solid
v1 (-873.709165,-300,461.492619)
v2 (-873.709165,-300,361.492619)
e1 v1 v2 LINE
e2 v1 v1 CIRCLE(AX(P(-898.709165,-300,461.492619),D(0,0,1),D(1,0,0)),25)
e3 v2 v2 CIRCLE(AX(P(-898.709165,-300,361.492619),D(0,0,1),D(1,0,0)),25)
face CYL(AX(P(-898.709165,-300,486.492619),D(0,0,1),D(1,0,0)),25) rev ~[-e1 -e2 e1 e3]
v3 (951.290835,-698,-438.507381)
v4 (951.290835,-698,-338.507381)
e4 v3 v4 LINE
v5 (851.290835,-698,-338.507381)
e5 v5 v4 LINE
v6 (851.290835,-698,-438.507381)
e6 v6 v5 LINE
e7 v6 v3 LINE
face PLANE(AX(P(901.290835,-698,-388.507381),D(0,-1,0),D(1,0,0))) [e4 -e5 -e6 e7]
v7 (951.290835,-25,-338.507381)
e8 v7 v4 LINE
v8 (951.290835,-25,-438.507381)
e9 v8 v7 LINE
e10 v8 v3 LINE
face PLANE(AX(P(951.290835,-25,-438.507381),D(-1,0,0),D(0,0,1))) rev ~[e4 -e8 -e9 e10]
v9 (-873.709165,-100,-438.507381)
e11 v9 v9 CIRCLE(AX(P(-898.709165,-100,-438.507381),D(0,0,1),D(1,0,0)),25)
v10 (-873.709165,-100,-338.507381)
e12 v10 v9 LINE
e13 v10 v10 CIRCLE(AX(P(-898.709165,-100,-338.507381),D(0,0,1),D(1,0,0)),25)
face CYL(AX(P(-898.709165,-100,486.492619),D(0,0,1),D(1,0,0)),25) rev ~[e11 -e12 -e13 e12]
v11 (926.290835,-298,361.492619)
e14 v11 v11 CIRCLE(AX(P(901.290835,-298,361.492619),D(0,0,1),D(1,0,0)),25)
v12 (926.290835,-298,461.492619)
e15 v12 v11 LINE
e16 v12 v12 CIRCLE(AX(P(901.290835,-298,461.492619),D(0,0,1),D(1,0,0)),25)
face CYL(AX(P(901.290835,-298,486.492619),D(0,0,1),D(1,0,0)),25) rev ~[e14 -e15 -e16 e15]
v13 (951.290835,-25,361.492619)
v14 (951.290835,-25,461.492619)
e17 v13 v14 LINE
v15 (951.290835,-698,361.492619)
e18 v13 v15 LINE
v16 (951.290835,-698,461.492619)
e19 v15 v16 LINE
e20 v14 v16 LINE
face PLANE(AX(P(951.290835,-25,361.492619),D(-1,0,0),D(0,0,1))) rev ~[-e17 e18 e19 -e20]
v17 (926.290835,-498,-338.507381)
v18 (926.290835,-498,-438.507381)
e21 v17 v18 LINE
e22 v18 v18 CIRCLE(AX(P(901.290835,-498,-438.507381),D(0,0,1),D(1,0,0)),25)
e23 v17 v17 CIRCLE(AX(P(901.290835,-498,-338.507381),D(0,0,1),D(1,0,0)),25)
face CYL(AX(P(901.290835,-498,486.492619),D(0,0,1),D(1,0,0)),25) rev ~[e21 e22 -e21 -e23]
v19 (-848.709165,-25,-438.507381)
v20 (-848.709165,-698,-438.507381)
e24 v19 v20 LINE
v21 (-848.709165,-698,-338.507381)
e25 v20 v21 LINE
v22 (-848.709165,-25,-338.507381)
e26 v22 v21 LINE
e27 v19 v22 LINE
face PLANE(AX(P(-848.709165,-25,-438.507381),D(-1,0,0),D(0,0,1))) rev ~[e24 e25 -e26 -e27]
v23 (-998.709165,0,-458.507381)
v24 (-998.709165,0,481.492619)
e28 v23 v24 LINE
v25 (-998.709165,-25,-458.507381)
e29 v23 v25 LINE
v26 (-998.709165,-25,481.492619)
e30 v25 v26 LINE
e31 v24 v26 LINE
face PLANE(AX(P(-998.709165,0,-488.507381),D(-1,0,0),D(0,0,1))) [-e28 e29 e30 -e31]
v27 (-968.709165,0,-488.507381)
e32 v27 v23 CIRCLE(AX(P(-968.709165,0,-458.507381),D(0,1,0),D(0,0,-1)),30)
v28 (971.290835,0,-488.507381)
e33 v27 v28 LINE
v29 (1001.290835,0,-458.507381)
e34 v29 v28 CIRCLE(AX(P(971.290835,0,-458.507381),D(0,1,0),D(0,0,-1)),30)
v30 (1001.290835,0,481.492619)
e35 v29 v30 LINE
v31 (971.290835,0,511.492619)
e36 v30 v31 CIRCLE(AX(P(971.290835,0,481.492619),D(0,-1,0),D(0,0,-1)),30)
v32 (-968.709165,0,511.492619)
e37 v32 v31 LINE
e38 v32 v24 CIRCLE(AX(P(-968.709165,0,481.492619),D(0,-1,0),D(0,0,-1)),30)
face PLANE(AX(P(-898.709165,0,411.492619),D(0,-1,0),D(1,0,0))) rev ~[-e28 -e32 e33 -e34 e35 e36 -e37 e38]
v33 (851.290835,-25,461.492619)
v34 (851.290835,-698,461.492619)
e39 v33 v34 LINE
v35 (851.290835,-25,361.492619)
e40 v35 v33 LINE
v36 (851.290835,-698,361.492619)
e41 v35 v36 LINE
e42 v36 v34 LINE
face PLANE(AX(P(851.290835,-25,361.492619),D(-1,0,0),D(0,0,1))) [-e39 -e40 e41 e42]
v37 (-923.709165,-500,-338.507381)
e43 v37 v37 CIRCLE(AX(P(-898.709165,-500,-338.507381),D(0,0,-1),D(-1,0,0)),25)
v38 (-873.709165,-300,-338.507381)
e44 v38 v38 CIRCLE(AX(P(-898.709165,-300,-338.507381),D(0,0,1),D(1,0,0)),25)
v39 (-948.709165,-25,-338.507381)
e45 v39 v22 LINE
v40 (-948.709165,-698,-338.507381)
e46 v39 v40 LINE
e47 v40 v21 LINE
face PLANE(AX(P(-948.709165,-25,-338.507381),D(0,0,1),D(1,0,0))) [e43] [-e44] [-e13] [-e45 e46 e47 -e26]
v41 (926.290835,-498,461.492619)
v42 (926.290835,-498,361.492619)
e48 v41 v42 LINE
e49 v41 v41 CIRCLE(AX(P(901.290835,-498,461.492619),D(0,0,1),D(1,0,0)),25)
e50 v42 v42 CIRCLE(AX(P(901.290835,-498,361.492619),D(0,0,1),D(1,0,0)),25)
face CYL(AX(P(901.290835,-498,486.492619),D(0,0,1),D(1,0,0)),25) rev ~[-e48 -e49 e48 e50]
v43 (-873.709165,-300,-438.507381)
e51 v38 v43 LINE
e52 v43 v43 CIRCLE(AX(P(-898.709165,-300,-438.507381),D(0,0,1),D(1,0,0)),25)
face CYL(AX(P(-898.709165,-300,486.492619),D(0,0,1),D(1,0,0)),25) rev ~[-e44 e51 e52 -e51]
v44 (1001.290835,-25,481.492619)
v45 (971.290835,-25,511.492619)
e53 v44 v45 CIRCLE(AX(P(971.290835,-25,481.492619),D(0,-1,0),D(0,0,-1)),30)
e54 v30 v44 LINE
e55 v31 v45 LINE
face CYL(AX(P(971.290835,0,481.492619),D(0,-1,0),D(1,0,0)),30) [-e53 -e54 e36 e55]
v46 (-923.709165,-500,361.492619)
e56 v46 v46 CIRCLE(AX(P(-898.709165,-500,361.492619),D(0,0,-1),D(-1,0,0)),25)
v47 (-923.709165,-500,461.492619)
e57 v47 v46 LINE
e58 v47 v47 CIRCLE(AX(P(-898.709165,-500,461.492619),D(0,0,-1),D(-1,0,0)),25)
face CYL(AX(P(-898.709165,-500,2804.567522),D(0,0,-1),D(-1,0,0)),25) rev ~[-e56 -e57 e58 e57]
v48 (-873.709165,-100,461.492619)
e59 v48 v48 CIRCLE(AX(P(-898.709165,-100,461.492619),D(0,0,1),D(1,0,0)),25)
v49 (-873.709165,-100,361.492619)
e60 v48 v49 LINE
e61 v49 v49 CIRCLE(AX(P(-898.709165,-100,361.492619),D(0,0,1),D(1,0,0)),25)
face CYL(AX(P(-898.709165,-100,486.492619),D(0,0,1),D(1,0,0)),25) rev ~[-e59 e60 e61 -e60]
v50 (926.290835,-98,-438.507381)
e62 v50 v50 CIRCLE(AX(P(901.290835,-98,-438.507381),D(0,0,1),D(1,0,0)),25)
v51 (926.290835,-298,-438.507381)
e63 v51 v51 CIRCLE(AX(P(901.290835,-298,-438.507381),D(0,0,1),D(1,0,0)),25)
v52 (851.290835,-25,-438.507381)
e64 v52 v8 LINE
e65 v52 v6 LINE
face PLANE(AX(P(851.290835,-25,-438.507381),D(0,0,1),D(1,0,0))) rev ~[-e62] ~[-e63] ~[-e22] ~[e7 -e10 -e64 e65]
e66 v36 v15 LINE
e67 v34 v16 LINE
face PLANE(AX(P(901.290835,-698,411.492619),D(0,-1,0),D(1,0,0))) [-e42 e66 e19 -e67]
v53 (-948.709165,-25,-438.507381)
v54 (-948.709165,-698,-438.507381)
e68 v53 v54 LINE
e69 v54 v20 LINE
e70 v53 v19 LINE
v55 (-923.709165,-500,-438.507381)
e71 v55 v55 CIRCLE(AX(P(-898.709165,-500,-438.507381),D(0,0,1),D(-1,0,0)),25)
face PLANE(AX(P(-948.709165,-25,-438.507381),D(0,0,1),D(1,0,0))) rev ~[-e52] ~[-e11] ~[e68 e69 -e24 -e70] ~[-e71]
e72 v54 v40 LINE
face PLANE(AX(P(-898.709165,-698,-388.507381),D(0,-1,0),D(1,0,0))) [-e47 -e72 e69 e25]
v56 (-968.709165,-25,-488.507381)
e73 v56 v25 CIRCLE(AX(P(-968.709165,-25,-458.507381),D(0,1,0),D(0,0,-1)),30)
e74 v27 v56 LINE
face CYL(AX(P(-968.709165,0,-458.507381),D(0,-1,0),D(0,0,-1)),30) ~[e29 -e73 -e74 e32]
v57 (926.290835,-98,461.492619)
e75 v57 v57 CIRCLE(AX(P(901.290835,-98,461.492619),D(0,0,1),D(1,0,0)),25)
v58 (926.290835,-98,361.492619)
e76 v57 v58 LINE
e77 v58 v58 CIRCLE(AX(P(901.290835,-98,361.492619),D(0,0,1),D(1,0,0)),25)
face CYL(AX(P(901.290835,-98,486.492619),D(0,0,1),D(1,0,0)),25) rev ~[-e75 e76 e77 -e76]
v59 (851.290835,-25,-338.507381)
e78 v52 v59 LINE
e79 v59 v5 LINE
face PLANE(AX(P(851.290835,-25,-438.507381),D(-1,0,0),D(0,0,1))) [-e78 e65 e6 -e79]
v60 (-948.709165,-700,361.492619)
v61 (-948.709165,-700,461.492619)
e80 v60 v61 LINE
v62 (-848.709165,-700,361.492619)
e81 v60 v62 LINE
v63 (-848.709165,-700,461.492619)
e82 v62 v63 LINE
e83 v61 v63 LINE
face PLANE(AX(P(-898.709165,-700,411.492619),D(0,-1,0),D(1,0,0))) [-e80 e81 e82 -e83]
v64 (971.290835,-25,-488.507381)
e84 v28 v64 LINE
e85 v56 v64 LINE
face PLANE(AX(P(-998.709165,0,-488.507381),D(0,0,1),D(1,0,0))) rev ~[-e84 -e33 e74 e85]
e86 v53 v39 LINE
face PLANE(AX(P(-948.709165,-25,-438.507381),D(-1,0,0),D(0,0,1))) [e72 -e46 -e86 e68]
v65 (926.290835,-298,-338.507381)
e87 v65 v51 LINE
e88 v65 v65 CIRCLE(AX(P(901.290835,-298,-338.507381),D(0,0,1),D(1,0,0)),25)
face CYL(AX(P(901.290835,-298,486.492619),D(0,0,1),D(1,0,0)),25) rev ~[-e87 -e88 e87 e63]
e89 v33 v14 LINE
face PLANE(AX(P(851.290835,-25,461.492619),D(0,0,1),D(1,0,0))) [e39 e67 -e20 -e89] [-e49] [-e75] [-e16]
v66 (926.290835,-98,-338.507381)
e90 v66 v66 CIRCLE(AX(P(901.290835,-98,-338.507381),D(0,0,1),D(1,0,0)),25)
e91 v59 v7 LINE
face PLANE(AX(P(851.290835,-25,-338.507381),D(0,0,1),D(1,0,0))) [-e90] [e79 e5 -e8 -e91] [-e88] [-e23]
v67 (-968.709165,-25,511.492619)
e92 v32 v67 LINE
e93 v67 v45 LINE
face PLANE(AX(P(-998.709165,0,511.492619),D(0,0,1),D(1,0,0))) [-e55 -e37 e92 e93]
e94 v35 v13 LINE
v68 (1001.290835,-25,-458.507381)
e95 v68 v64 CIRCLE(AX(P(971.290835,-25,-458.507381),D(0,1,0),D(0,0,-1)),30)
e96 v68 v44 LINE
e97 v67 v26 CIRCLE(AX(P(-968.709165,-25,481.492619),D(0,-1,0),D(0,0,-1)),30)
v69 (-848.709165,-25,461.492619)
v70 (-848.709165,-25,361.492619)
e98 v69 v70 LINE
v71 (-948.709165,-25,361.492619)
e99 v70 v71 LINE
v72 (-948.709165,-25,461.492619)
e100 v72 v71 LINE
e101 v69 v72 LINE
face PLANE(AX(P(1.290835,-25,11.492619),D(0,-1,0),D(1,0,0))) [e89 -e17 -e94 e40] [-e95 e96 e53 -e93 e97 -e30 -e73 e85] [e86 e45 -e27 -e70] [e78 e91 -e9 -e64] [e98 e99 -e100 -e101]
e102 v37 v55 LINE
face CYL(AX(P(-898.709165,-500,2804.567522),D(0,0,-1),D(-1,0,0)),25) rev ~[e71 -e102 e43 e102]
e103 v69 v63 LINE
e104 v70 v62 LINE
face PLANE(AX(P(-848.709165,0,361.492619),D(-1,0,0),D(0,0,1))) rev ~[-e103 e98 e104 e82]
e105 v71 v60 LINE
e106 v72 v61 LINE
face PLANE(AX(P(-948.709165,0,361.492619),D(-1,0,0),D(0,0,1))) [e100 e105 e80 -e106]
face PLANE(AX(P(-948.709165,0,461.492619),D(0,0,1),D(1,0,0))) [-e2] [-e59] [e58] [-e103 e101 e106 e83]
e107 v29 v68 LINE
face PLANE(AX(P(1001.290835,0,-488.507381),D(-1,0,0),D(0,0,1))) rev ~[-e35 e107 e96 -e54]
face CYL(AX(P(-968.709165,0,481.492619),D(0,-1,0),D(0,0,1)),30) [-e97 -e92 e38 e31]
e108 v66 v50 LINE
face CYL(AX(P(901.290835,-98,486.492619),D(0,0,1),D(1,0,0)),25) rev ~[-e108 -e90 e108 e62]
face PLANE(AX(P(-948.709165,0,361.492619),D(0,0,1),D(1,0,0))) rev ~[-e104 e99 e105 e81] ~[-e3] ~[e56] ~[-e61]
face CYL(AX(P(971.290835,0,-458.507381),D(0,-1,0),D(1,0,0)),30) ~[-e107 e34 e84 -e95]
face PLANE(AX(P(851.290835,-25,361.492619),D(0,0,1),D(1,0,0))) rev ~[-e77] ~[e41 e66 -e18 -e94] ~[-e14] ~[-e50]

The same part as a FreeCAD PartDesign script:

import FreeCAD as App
import Part
import Sketcher
from FreeCAD import Vector
Q = App.Units.Quantity


def edges_at(feature, points):
    """Names of the edges that pass closest to the given points."""
    edges = feature.Shape.Edges
    near = lambda p: min(range(len(edges)), key=lambda i: edges[i].distToShape(Part.Vertex(*p))[0])
    return sorted({f"Edge{near(p) + 1}" for p in points})


def add_polygon(sketch, points):
    """Adds a closed chain of lines whose ends are joined by coincident constraints."""
    first, n = sketch.GeometryCount, len(points)
    for a, b in zip(points, points[1:] + points[:1]):
        sketch.addGeometry(Part.LineSegment(App.Vector(*a, 0), App.Vector(*b, 0)), False)
    for i in range(n):
        sketch.addConstraint(Sketcher.Constraint("Coincident", first + i, 2, first + (i + 1) % n, 1))

doc = App.newDocument("Part")
body = doc.addObject("PartDesign::Body", "Body")
body.AllowCompound = True

# Sketch on XZ plane
sketch1 = body.newObject("Sketcher::SketchObject", "Sketch")
sketch1.AttachmentSupport = (doc.getObject("XZ_Plane"), [""])
sketch1.MapMode = "FlatFace"
add_polygon(sketch1, [(-999, 511), (-999, -489), (1001, -489), (1001, 511)])  # lines 0-3
sketch1.addConstraint([
    Sketcher.Constraint("Vertical", 0),
    Sketcher.Constraint("Horizontal", 1),
    Sketcher.Constraint("Vertical", 2),
    Sketcher.Constraint("Horizontal", 3),
    Sketcher.Constraint("DistanceX", 1, 1, 1, 2, Q("2000 mm")),
    Sketcher.Constraint("DistanceY", 0, 2, 0, 1, Q("1000 mm")),
    Sketcher.Constraint("DistanceY", 0, 2, -1, 1, Q("488.507381 mm")),
    Sketcher.Constraint("DistanceX", 0, 2, -1, 1, Q("998.709165 mm")),
])
pad1 = body.newObject("PartDesign::Pad", "Pad")
pad1.Profile = sketch1
pad1.Length = 25

# Sketch on XZ plane
sketch2 = body.newObject("Sketcher::SketchObject", "Sketch001")
sketch2.AttachmentSupport = (doc.getObject("XZ_Plane"), [""])
sketch2.MapMode = "FlatFace"
add_polygon(sketch2, [(-949, 461), (-949, 361), (-849, 361), (-849, 461)])  # lines 0-3
sketch2.addConstraint([
    Sketcher.Constraint("Vertical", 0),
    Sketcher.Constraint("Horizontal", 1),
    Sketcher.Constraint("Vertical", 2),
    Sketcher.Constraint("Horizontal", 3),
    Sketcher.Constraint("Equal", 3, 0),
    Sketcher.Constraint("DistanceX", 1, 1, 1, 2, Q("100 mm")),
    Sketcher.Constraint("DistanceY", -1, 1, 0, 2, Q("361.492619 mm")),
    Sketcher.Constraint("DistanceX", 0, 2, -1, 1, Q("948.709165 mm")),
])
pad2 = body.newObject("PartDesign::Pad", "Pad001")
pad2.Profile = sketch2
pad2.Length = 700

# Sketch on XZ plane
sketch3 = body.newObject("Sketcher::SketchObject", "Sketch002")
sketch3.AttachmentSupport = (doc.getObject("XZ_Plane"), [""])
sketch3.MapMode = "FlatFace"
sketch3.AttachmentOffset = App.Placement(Vector(0, 0, 25), App.Rotation())
add_polygon(sketch3, [(-949, -339), (-949, -439), (-849, -439), (-849, -339)])  # lines 0-3
add_polygon(sketch3, [(851, -339), (851, -439), (951, -439), (951, -339)])  # lines 4-7
add_polygon(sketch3, [(851, 461), (851, 361), (951, 361), (951, 461)])  # lines 8-11
sketch3.addConstraint([
    Sketcher.Constraint("Vertical", 0),
    Sketcher.Constraint("Horizontal", 1),
    Sketcher.Constraint("Vertical", 2),
    Sketcher.Constraint("Horizontal", 3),
    Sketcher.Constraint("Vertical", 4),
    Sketcher.Constraint("Horizontal", 5),
    Sketcher.Constraint("Vertical", 6),
    Sketcher.Constraint("Horizontal", 7),
    Sketcher.Constraint("Vertical", 8),
    Sketcher.Constraint("Horizontal", 9),
    Sketcher.Constraint("Vertical", 10),
    Sketcher.Constraint("Horizontal", 11),
    Sketcher.Constraint("Horizontal", 1, 2, 4, 2),
    Sketcher.Constraint("Horizontal", 3, 2, 6, 2),
    Sketcher.Constraint("Vertical", 7, 2, 8, 2),
    Sketcher.Constraint("Vertical", 6, 2, 9, 2),
    Sketcher.Constraint("Equal", 3, 5),
    Sketcher.Constraint("Equal", 11, 0),
    Sketcher.Constraint("Equal", 6, 8),
    Sketcher.Constraint("DistanceX", 1, 1, 1, 2, Q("100 mm")),
    Sketcher.Constraint("DistanceX", 1, 2, 4, 2, Q("1700 mm")),
    Sketcher.Constraint("DistanceY", 7, 2, 8, 2, Q("700 mm")),
    Sketcher.Constraint("DistanceY", 0, 2, -1, 1, Q("438.507381 mm")),
    Sketcher.Constraint("DistanceX", 0, 2, -1, 1, Q("948.709165 mm")),
])
pad3 = body.newObject("PartDesign::Pad", "Pad002")
pad3.Profile = sketch3
pad3.Length = 673

# Sketch on XY plane
sketch4 = body.newObject("Sketcher::SketchObject", "Sketch003")
sketch4.AttachmentSupport = (doc.getObject("XY_Plane"), [""])
sketch4.MapMode = "FlatFace"
sketch4.AttachmentOffset = App.Placement(Vector(0, 0, 461.492619), App.Rotation())
sketch4.addGeometry(Part.Circle(Vector(-899, -500, 0), Vector(0, 0, 1), 25), False)
sketch4.addConstraint([
    Sketcher.Constraint("Diameter", 0, Q("50 mm")),
    Sketcher.Constraint("DistanceY", 0, 3, -1, 1, Q("500 mm")),
    Sketcher.Constraint("DistanceX", 0, 3, -1, 1, Q("898.709165 mm")),
])
doc.recompute()
hole = body.newObject("PartDesign::Hole", "Hole")
hole.Profile = sketch4
hole.ThreadType = "None"
hole.Diameter = 50
hole.DepthType = "ThroughAll"

# Sketch on XY plane
sketch5 = body.newObject("Sketcher::SketchObject", "Sketch004")
sketch5.AttachmentSupport = (doc.getObject("XY_Plane"), [""])
sketch5.MapMode = "FlatFace"
sketch5.AttachmentOffset = App.Placement(Vector(0, 0, 461.492619), App.Rotation())
sketch5.addGeometry([
    Part.Circle(Vector(-899, -300, 0), Vector(0, 0, 1), 25),  # 0
    Part.Circle(Vector(-899, -100, 0), Vector(0, 0, 1), 25),  # 1
    Part.Circle(Vector(-899, -500, 0), Vector(0, 0, 1), 25),  # 2
    Part.Circle(Vector(901, -498, 0), Vector(0, 0, 1), 25),  # 3
    Part.Circle(Vector(901, -298, 0), Vector(0, 0, 1), 25),  # 4
    Part.Circle(Vector(901, -98, 0), Vector(0, 0, 1), 25),  # 5
], False)
sketch5.addConstraint([
    Sketcher.Constraint("Equal", 0, 1),
    Sketcher.Constraint("Equal", 1, 2),
    Sketcher.Constraint("Equal", 2, 3),
    Sketcher.Constraint("Equal", 3, 4),
    Sketcher.Constraint("Equal", 4, 5),
    Sketcher.Constraint("Vertical", 0, 3, 1, 3),
    Sketcher.Constraint("Vertical", 1, 3, 2, 3),
    Sketcher.Constraint("Vertical", 3, 3, 4, 3),
    Sketcher.Constraint("Vertical", 4, 3, 5, 3),
    Sketcher.Constraint("Diameter", 0, Q("50 mm")),
    Sketcher.Constraint("DistanceY", 0, 3, -1, 1, Q("300 mm")),
    Sketcher.Constraint("DistanceY", 1, 3, -1, 1, Q("100 mm")),
    Sketcher.Constraint("DistanceY", 2, 3, -1, 1, Q("500 mm")),
    Sketcher.Constraint("DistanceY", 3, 3, -1, 1, Q("498 mm")),
    Sketcher.Constraint("DistanceY", 4, 3, -1, 1, Q("298 mm")),
    Sketcher.Constraint("DistanceY", 5, 3, -1, 1, Q("98 mm")),
    Sketcher.Constraint("DistanceX", 2, 3, 3, 3, Q("1800 mm")),
    Sketcher.Constraint("DistanceX", 0, 3, -1, 1, Q("898.709165 mm")),
])
pad4 = body.newObject("PartDesign::Pad", "Pad003")
pad4.Profile = sketch5
pad4.Length = 25

# Sketch on XY plane
sketch6 = body.newObject("Sketcher::SketchObject", "Sketch005")
sketch6.AttachmentSupport = (doc.getObject("XY_Plane"), [""])
sketch6.MapMode = "FlatFace"
sketch6.AttachmentOffset = App.Placement(Vector(0, 0, 486.492619), App.Rotation())
sketch6.addGeometry([
    Part.Circle(Vector(-899, -300, 0), Vector(0, 0, 1), 25),  # 0
    Part.Circle(Vector(-899, -100, 0), Vector(0, 0, 1), 25),  # 1
    Part.Circle(Vector(-899, -500, 0), Vector(0, 0, 1), 25),  # 2
    Part.Circle(Vector(901, -98, 0), Vector(0, 0, 1), 25),  # 3
    Part.Circle(Vector(901, -298, 0), Vector(0, 0, 1), 25),  # 4
    Part.Circle(Vector(901, -498, 0), Vector(0, 0, 1), 25),  # 5
], False)
sketch6.addConstraint([
    Sketcher.Constraint("Equal", 0, 1),
    Sketcher.Constraint("Equal", 1, 2),
    Sketcher.Constraint("Equal", 2, 3),
    Sketcher.Constraint("Equal", 3, 4),
    Sketcher.Constraint("Equal", 4, 5),
    Sketcher.Constraint("Vertical", 0, 3, 1, 3),
    Sketcher.Constraint("Vertical", 1, 3, 2, 3),
    Sketcher.Constraint("Vertical", 3, 3, 4, 3),
    Sketcher.Constraint("Vertical", 4, 3, 5, 3),
    Sketcher.Constraint("Diameter", 0, Q("50 mm")),
    Sketcher.Constraint("DistanceY", 0, 3, -1, 1, Q("300 mm")),
    Sketcher.Constraint("DistanceY", 1, 3, -1, 1, Q("100 mm")),
    Sketcher.Constraint("DistanceY", 2, 3, -1, 1, Q("500 mm")),
    Sketcher.Constraint("DistanceY", 3, 3, -1, 1, Q("98 mm")),
    Sketcher.Constraint("DistanceY", 4, 3, -1, 1, Q("298 mm")),
    Sketcher.Constraint("DistanceY", 5, 3, -1, 1, Q("498 mm")),
    Sketcher.Constraint("DistanceX", 1, 3, 3, 3, Q("1800 mm")),
    Sketcher.Constraint("DistanceX", 0, 3, -1, 1, Q("898.709165 mm")),
])
pocket1 = body.newObject("PartDesign::Pocket", "Pocket")
pocket1.Profile = sketch6
pocket1.Type = "ThroughAll"
doc.recompute()

fillet = body.newObject("PartDesign::Fillet", "Fillet")
fillet.Base = (pocket1, edges_at(pocket1, [
    (-998.709, -12.5, 511.493),
    (-998.709, -12.5, -488.507),
    (1001.291, -12.5, -488.507),
    (1001.291, -12.5, 511.493),
]))
fillet.Radius = 30

doc.recompute()
